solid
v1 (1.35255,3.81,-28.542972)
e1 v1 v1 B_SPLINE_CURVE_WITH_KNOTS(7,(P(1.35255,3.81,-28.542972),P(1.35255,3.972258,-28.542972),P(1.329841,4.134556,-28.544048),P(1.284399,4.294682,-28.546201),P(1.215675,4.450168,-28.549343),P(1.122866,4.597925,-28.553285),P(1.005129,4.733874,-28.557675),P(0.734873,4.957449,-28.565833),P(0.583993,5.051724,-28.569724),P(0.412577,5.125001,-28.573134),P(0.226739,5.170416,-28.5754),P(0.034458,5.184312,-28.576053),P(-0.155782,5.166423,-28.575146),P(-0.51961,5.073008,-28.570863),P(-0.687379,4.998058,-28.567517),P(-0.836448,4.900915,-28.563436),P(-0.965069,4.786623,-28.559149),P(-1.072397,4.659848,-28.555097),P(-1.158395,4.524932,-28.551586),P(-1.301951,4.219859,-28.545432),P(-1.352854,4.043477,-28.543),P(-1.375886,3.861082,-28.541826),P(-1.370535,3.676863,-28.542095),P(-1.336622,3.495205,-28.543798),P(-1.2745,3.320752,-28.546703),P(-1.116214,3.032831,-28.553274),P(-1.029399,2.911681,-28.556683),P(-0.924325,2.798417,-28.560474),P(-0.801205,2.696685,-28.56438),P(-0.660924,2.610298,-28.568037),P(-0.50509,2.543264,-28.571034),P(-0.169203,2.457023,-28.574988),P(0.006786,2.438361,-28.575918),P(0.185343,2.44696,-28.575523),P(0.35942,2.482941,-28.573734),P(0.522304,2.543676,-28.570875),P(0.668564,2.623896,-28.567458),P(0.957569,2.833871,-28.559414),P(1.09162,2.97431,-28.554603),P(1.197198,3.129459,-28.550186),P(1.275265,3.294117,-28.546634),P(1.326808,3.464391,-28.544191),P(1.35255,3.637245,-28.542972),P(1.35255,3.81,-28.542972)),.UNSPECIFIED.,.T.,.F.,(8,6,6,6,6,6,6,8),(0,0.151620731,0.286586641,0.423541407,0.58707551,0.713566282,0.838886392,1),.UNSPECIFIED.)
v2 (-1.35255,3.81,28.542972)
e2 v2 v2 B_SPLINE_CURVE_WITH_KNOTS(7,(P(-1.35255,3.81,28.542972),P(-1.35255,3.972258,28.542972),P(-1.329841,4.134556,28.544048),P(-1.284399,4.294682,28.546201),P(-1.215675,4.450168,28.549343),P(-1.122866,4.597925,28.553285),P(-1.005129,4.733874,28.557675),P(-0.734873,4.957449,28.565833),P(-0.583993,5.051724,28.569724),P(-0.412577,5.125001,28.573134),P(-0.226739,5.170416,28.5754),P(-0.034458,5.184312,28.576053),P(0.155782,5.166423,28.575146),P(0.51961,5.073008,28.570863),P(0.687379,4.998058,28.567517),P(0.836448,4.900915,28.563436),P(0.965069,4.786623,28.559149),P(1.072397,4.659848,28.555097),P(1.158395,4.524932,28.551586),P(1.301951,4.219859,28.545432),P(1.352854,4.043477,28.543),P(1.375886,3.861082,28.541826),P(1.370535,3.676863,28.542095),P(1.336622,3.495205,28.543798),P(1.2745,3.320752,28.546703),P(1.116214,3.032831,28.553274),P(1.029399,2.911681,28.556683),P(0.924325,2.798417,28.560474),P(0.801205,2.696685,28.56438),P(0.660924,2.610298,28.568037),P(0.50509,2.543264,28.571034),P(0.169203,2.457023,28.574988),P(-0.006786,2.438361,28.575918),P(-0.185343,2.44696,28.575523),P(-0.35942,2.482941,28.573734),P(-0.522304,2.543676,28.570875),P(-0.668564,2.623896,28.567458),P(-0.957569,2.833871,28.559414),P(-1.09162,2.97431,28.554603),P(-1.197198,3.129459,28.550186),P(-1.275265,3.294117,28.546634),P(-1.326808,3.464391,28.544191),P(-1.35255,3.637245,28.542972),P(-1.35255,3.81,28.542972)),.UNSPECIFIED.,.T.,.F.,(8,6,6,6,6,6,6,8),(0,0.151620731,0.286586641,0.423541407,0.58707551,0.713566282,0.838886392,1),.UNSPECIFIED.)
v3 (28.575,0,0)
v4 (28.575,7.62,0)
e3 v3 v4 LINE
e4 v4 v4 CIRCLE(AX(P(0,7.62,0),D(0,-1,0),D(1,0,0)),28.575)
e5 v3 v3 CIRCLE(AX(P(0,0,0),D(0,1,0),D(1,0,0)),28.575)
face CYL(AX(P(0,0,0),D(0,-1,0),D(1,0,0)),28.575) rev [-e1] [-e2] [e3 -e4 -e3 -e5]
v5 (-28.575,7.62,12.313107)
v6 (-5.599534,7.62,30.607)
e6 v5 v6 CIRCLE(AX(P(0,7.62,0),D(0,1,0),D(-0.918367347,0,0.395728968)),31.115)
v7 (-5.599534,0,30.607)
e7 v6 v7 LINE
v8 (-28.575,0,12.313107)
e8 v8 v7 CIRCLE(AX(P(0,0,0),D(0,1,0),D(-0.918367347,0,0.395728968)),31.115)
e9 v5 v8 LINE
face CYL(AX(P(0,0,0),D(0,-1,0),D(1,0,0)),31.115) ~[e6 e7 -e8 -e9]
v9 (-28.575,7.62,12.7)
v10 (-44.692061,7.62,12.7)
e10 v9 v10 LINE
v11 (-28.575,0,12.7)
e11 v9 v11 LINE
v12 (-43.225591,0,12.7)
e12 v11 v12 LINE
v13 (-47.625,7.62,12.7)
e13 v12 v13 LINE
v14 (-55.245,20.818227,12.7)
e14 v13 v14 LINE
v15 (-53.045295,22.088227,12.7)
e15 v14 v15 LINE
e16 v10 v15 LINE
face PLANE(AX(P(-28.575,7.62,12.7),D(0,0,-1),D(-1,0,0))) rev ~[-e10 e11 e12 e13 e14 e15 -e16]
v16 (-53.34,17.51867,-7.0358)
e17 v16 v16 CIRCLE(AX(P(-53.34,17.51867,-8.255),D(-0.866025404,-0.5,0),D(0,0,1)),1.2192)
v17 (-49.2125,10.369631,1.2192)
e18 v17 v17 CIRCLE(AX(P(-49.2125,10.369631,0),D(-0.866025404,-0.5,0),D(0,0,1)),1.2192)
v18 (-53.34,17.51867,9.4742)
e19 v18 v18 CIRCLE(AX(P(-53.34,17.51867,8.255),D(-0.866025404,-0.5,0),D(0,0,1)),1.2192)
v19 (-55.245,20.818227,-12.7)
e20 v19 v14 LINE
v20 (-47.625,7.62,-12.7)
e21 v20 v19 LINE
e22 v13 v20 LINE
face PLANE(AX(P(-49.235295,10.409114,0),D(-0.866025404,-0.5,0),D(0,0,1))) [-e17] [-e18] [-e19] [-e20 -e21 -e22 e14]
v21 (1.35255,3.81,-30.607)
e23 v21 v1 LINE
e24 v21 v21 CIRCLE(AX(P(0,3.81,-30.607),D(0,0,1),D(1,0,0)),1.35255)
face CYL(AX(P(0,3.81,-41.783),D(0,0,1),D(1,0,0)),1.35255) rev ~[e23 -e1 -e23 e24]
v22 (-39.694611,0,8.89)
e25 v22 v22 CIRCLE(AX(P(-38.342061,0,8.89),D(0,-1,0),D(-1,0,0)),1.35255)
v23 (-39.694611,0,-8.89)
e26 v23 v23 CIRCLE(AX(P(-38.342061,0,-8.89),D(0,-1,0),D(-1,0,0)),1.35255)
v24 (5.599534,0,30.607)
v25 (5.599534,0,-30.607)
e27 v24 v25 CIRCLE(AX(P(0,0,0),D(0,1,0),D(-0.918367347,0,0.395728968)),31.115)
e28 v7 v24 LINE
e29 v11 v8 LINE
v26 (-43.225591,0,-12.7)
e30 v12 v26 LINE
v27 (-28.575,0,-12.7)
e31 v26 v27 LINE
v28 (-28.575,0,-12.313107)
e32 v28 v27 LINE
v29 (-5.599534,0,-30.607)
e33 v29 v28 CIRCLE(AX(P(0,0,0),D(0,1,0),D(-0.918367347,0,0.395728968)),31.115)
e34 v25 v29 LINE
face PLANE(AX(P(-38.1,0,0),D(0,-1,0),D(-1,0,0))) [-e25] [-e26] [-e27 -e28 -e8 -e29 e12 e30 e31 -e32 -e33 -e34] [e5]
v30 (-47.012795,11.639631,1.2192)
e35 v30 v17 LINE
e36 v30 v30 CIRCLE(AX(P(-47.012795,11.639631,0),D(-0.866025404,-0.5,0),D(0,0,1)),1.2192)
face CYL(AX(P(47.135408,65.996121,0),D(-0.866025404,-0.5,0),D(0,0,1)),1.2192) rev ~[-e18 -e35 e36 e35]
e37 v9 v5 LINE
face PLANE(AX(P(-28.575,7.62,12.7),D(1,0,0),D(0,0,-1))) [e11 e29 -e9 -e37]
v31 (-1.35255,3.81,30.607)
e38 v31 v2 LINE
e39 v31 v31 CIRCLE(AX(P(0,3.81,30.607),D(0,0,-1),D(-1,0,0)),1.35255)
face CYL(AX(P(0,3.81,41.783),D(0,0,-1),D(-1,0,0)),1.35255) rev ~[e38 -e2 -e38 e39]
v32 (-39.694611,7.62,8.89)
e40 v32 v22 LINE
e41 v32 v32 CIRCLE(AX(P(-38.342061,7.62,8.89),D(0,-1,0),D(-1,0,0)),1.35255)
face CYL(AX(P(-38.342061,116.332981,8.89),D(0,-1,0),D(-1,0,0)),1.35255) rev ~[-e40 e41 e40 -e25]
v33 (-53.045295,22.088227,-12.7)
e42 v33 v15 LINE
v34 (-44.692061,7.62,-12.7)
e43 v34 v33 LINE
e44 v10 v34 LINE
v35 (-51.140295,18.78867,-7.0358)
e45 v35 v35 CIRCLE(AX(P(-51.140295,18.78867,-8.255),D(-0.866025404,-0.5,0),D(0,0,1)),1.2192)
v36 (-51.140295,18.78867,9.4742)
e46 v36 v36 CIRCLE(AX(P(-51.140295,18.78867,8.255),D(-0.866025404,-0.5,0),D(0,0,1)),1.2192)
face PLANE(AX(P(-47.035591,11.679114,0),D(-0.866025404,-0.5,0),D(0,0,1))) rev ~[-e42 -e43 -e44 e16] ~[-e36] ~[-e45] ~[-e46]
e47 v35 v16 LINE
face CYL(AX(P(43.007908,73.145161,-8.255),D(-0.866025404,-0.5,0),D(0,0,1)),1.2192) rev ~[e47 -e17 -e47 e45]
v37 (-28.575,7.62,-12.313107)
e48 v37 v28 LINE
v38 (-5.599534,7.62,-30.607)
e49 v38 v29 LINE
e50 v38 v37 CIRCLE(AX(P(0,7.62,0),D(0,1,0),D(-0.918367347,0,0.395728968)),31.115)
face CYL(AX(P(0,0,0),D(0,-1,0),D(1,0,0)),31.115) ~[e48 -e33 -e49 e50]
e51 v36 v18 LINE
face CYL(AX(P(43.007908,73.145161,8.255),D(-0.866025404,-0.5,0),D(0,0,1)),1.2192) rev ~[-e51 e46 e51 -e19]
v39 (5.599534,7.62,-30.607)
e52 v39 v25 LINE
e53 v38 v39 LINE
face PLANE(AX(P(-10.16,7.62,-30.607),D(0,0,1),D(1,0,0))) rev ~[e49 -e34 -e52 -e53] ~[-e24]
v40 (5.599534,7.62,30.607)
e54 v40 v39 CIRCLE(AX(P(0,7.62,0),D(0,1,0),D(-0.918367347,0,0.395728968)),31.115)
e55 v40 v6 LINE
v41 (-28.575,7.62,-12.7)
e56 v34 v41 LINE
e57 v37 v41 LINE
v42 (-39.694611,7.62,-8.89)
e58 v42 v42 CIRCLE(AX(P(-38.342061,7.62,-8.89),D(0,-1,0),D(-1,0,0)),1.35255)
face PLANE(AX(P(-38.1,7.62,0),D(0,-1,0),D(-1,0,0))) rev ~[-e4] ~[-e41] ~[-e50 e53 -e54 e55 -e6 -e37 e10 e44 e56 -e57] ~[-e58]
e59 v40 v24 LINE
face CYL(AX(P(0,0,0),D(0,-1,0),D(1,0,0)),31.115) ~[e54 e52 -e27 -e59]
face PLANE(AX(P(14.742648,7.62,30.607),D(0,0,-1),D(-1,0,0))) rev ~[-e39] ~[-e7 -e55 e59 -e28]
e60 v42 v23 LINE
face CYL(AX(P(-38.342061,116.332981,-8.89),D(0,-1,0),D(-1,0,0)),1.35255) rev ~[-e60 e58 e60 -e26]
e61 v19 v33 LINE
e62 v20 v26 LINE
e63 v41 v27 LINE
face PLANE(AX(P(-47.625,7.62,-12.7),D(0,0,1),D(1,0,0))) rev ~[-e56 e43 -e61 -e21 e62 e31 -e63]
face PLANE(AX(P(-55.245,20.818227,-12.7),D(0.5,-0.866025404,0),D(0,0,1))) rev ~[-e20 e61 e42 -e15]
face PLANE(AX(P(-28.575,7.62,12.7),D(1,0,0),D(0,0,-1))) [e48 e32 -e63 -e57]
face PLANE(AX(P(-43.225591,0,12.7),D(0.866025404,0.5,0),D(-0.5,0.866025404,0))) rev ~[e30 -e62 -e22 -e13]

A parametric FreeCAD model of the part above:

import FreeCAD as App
import Part
import Sketcher
from FreeCAD import Vector
Q = App.Units.Quantity


def add_polygon(sketch, points):
    """Adds a closed chain of lines whose ends are joined by coincident constraints."""
    first, n = sketch.GeometryCount, len(points)
    for a, b in zip(points, points[1:] + points[:1]):
        sketch.addGeometry(Part.LineSegment(App.Vector(*a, 0), App.Vector(*b, 0)), False)
    for i in range(n):
        sketch.addConstraint(Sketcher.Constraint("Coincident", first + i, 2, first + (i + 1) % n, 1))

doc = App.newDocument("Part")
params = doc.addObject("Spreadsheet::Sheet", "Params")
for row, (alias, value) in enumerate([
    ("sketch1_diameter", "2.45 in"),
    ("sketch1_diameter2", "2.25 in"),
    ("pad1_length", "0.3 in"),
    ("sketch2_height", "1 in"),
    ("sketch2_width", "0.75 in"),
    ("pad2_length", "0.3 in"),
    ("sketch3_height", "0.3 in"),
    ("sketch4_height", "0.3 in"),
    ("pocket2_length", "66.161026 mm"),
    ("sketch5_width", "1 in"),
    ("pad3_length", "0.1 in"),
    ("sketch6_diameter", "0.096 in"),
    ("hole_diameter", "0.096 in"),
    ("hole2_diameter", "0.1065 in"),
    ("sketch8_width", "0.8 in"),
    ("sketch8_height", "0.02 in"),
    ("sketch9_height", "0.02 in"),
    ("hole3_diameter", "0.1065 in"),
    ("hole3_depth", "0.44 in"),
    ("hole4_diameter", "0.1065 in"),
    ("hole4_depth", "0.44 in"),
], start=1):
    params.set(f"A{row}", alias)
    params.set(f"B{row}", "=" + value)
    params.setAlias(f"B{row}", alias)

body = doc.addObject("PartDesign::Body", "Body")

# Sketch on XZ plane
sketch1 = doc.addObject("Sketcher::SketchObject", "Sketch")
body.addObject(sketch1)
sketch1.AttachmentSupport = (doc.XZ_Plane, [""])
sketch1.MapMode = "FlatFace"
sketch1.addGeometry(Part.Circle(Vector(0, 0, 0), Vector(0, 0, 1), 31), False)
sketch1.addGeometry(Part.Circle(Vector(0, 0, 0), Vector(0, 0, 1), 29), False)
sketch1.addConstraint(Sketcher.Constraint("Coincident", 0, 3, -1, 1))
sketch1.addConstraint(Sketcher.Constraint("Coincident", 1, 3, -1, 1))
sketch1.addConstraint(Sketcher.Constraint("Diameter", 0, Q("2.45 in")))
sketch1.addConstraint(Sketcher.Constraint("Diameter", 1, Q("2.25 in")))
sketch1.setExpression("Constraints[2]", "Params.sketch1_diameter")
sketch1.setExpression("Constraints[3]", "Params.sketch1_diameter2")
pad1 = doc.addObject("PartDesign::Pad", "Pad")
body.addObject(pad1)
pad1.Profile = sketch1
pad1.setExpression("Length", "Params.pad1_length")
pad1.Reversed = True

# Sketch on XZ plane
sketch2 = doc.addObject("Sketcher::SketchObject", "Sketch001")
body.addObject(sketch2)
sketch2.AttachmentSupport = (doc.XZ_Plane, [""])
sketch2.MapMode = "FlatFace"
sketch2.AttachmentOffset = App.Placement(Vector(0, 0, -0.3 * 25.4), App.Rotation())
add_polygon(sketch2, [(-29, 13), (-29, -13), (-48, -13), (-48, 13)])  # lines 0-3
sketch2.addConstraint(Sketcher.Constraint("Vertical", 0))
sketch2.addConstraint(Sketcher.Constraint("Horizontal", 1))
sketch2.addConstraint(Sketcher.Constraint("Vertical", 2))
sketch2.addConstraint(Sketcher.Constraint("Horizontal", 3))
sketch2.addConstraint(Sketcher.Constraint("DistanceY", 0, 2, 0, 1, Q("1 in")))
sketch2.addConstraint(Sketcher.Constraint("DistanceX", 1, 2, 1, 1, Q("0.75 in")))
sketch2.addConstraint(Sketcher.Constraint("DistanceY", 0, 2, -1, 1, Q("0.5 in")))
sketch2.addConstraint(Sketcher.Constraint("DistanceX", 0, 2, -1, 1, Q("1.125 in")))
sketch2.setExpression("Constraints[8]", "Params.sketch2_height")
sketch2.setExpression("Constraints[9]", "Params.sketch2_width")
pad2 = doc.addObject("PartDesign::Pad", "Pad001")
body.addObject(pad2)
pad2.Profile = sketch2
pad2.setExpression("Length", "Params.pad2_length")

# Sketch on XY plane
sketch3 = doc.addObject("Sketcher::SketchObject", "Sketch002")
body.addObject(sketch3)
sketch3.AttachmentSupport = (doc.XY_Plane, [""])
sketch3.MapMode = "FlatFace"
sketch3.AttachmentOffset = App.Placement(Vector(0, 0, 0.5 * 25.4), App.Rotation())
add_polygon(sketch3, [(-47.6, 0), (-43.2, 0), (-47.6, 7.6)])  # lines 0-2
sketch3.addConstraint(Sketcher.Constraint("Horizontal", 0))
sketch3.addConstraint(Sketcher.Constraint("Vertical", 2))
sketch3.addConstraint(Sketcher.Constraint("PointOnObject", 0, 2, -1))
sketch3.addConstraint(Sketcher.Constraint("DistanceY", 2, 2, 2, 1, Q("0.3 in")))
sketch3.addConstraint(Sketcher.Constraint("Angle", 1, Q("120 deg")))
sketch3.addConstraint(Sketcher.Constraint("DistanceX", 1, 2, -1, 1, Q("1.875 in")))
sketch3.setExpression("Constraints[6]", "Params.sketch3_height")
pocket1 = doc.addObject("PartDesign::Pocket", "Pocket")
body.addObject(pocket1)
pocket1.Profile = sketch3
pocket1.Type = "UpToFirst"

# Sketch on XY plane
sketch4 = doc.addObject("Sketcher::SketchObject", "Sketch003")
body.addObject(sketch4)
sketch4.AttachmentSupport = (doc.XY_Plane, [""])
sketch4.MapMode = "FlatFace"
sketch4.AttachmentOffset = App.Placement(Vector(0, 0, 0.5 * 25.4), App.Rotation())
add_polygon(sketch4, [(-47.6, 0), (-43.2, 0), (-47.6, 7.6)])  # lines 0-2
sketch4.addConstraint(Sketcher.Constraint("Horizontal", 0))
sketch4.addConstraint(Sketcher.Constraint("Vertical", 2))
sketch4.addConstraint(Sketcher.Constraint("PointOnObject", 0, 2, -1))
sketch4.addConstraint(Sketcher.Constraint("DistanceY", 2, 2, 2, 1, Q("0.3 in")))
sketch4.addConstraint(Sketcher.Constraint("Angle", 1, Q("120 deg")))
sketch4.addConstraint(Sketcher.Constraint("DistanceX", 1, 2, -1, 1, Q("1.875 in")))
sketch4.setExpression("Constraints[6]", "Params.sketch4_height")
pocket2 = doc.addObject("PartDesign::Pocket", "Pocket001")
body.addObject(pocket2)
pocket2.Profile = sketch4
pocket2.setExpression("Length", "Params.pocket2_length")
pocket2.Reversed = True

# Sketch on an angled plane
sketch5 = doc.addObject("Sketcher::SketchObject", "Sketch004")
body.addObject(sketch5)
sketch5.Placement = App.Placement(Vector(-32.419193, -18.71723, 0), App.Rotation(Vector(0, 0, 1), Vector(-0.5, 0.866025404, 0), Vector(-0.866025404, -0.5, 0), "ZXY"))
add_polygon(sketch5, [(-13, 46), (-13, 22), (13, 22), (13, 46)])  # lines 0-3
sketch5.addConstraint(Sketcher.Constraint("Vertical", 0))
sketch5.addConstraint(Sketcher.Constraint("Horizontal", 1))
sketch5.addConstraint(Sketcher.Constraint("Vertical", 2))
sketch5.addConstraint(Sketcher.Constraint("Horizontal", 3))
sketch5.addConstraint(Sketcher.Constraint("DistanceX", 1, 1, 1, 2, Q("1 in")))
sketch5.addConstraint(Sketcher.Constraint("DistanceX", 0, 2, -1, 1, Q("0.5 in")))
sketch5.addConstraint(Sketcher.Constraint("DistanceY", 0, 2, 0, 1, Q("24.038818 mm")))
sketch5.addConstraint(Sketcher.Constraint("DistanceY", -1, 1, 0, 2, Q("21.612795 mm")))
sketch5.setExpression("Constraints[8]", "Params.sketch5_width")
pad3 = doc.addObject("PartDesign::Pad", "Pad002")
body.addObject(pad3)
pad3.Profile = sketch5
pad3.setExpression("Length", "Params.pad3_length")
pad3.Reversed = True

# Sketch on an angled plane
sketch6 = doc.addObject("Sketcher::SketchObject", "Sketch005")
body.addObject(sketch6)
sketch6.Placement = App.Placement(Vector(-30.219489, -17.44723, 0), App.Rotation(Vector(0, 0, -1), Vector(-0.5, 0.866025404, 0), Vector(0.866025404, 0.5, 0), "ZXY"))
sketch6.addGeometry(Part.Circle(Vector(-8.3, 41.8, 0), Vector(0, 0, 1), 1.2), False)
sketch6.addGeometry(Part.Circle(Vector(8.3, 41.8, 0), Vector(0, 0, 1), 1.2), False)
sketch6.addGeometry(Part.Circle(Vector(0, 33.6, 0), Vector(0, 0, 1), 1.2), False)
sketch6.addConstraint(Sketcher.Constraint("Equal", 0, 1))
sketch6.addConstraint(Sketcher.Constraint("Equal", 1, 2))
sketch6.addConstraint(Sketcher.Constraint("Symmetric", 0, 3, 1, 3, -2))
sketch6.addConstraint(Sketcher.Constraint("PointOnObject", 2, 3, -2))
sketch6.addConstraint(Sketcher.Constraint("Diameter", 0, Q("0.096 in")))
sketch6.addConstraint(Sketcher.Constraint("DistanceX", 0, 3, 1, 3, Q("0.65 in")))
sketch6.addConstraint(Sketcher.Constraint("DistanceY", 2, 3, 0, 3, Q("0.325 in")))
sketch6.addConstraint(Sketcher.Constraint("DistanceY", -1, 1, 0, 3, Q("41.841614 mm")))
sketch6.setExpression("Constraints[4]", "Params.sketch6_diameter")
doc.recompute()
hole = doc.addObject("PartDesign::Hole", "Hole")
body.addObject(hole)
hole.Profile = sketch6
hole.ThreadType = "None"
hole.setExpression("Diameter", "Params.hole_diameter")
hole.DepthType = "ThroughAll"

# Sketch on XZ plane
sketch7 = doc.addObject("Sketcher::SketchObject", "Sketch006")
body.addObject(sketch7)
sketch7.AttachmentSupport = (doc.XZ_Plane, [""])
sketch7.MapMode = "FlatFace"
sketch7.AttachmentOffset = App.Placement(Vector(0, 0, -0.3 * 25.4), App.Rotation())
sketch7.addGeometry(Part.Circle(Vector(-38.3, 8.9, 0), Vector(0, 0, 1), 1.4), False)
sketch7.addGeometry(Part.Circle(Vector(-38.3, -8.9, 0), Vector(0, 0, 1), 1.4), False)
sketch7.addConstraint(Sketcher.Constraint("Equal", 0, 1))
sketch7.addConstraint(Sketcher.Constraint("Symmetric", 0, 3, 1, 3, -1))
sketch7.addConstraint(Sketcher.Constraint("Diameter", 0, Q("0.1065 in")))
sketch7.addConstraint(Sketcher.Constraint("DistanceY", 1, 3, 0, 3, Q("0.7 in")))
sketch7.addConstraint(Sketcher.Constraint("DistanceX", 0, 3, -1, 1, Q("38.342061 mm")))
doc.recompute()
hole2 = doc.addObject("PartDesign::Hole", "Hole001")
body.addObject(hole2)
hole2.Profile = sketch7
hole2.ThreadType = "None"
hole2.setExpression("Diameter", "Params.hole2_diameter")
hole2.DepthType = "ThroughAll"
hole2.Reversed = True

# Sketch on XZ plane
sketch8 = doc.addObject("Sketcher::SketchObject", "Sketch007")
body.addObject(sketch8)
sketch8.AttachmentSupport = (doc.XZ_Plane, [""])
sketch8.MapMode = "FlatFace"
sketch8.AttachmentOffset = App.Placement(Vector(0, 0, -0.3 * 25.4), App.Rotation())
add_polygon(sketch8, [(-10.2, -31.1), (-10.2, -30.6), (10.2, -30.6), (10.2, -31.1)])  # lines 0-3
sketch8.addConstraint(Sketcher.Constraint("Vertical", 0))
sketch8.addConstraint(Sketcher.Constraint("Horizontal", 1))
sketch8.addConstraint(Sketcher.Constraint("Vertical", 2))
sketch8.addConstraint(Sketcher.Constraint("Horizontal", 3))
sketch8.addConstraint(Sketcher.Constraint("DistanceX", 1, 1, 1, 2, Q("0.8 in")))
sketch8.addConstraint(Sketcher.Constraint("DistanceY", 0, 1, 0, 2, Q("0.02 in")))
sketch8.addConstraint(Sketcher.Constraint("DistanceX", 0, 2, -1, 1, Q("0.4 in")))
sketch8.addConstraint(Sketcher.Constraint("DistanceY", 0, 2, -1, 1, Q("1.205 in")))
sketch8.setExpression("Constraints[8]", "Params.sketch8_width")
sketch8.setExpression("Constraints[9]", "Params.sketch8_height")
pocket3 = doc.addObject("PartDesign::Pocket", "Pocket002")
body.addObject(pocket3)
pocket3.Profile = sketch8
pocket3.Type = "ThroughAll"
pocket3.Reversed = True

# Sketch on XZ plane
sketch9 = doc.addObject("Sketcher::SketchObject", "Sketch008")
body.addObject(sketch9)
sketch9.AttachmentSupport = (doc.XZ_Plane, [""])
sketch9.MapMode = "FlatFace"
sketch9.AttachmentOffset = App.Placement(Vector(0, 0, -0.3 * 25.4), App.Rotation())
add_polygon(sketch9, [(14.7, 31.1), (14.7, 30.6), (-16.1, 30.6), (-16.1, 31.1)])  # lines 0-3
sketch9.addConstraint(Sketcher.Constraint("Vertical", 0))
sketch9.addConstraint(Sketcher.Constraint("Horizontal", 1))
sketch9.addConstraint(Sketcher.Constraint("Vertical", 2))
sketch9.addConstraint(Sketcher.Constraint("Horizontal", 3))
sketch9.addConstraint(Sketcher.Constraint("DistanceY", 0, 2, 0, 1, Q("0.02 in")))
sketch9.addConstraint(Sketcher.Constraint("DistanceY", -1, 1, 0, 2, Q("1.205 in")))
sketch9.addConstraint(Sketcher.Constraint("DistanceX", 1, 2, 1, 1, Q("30.82263 mm")))
sketch9.addConstraint(Sketcher.Constraint("DistanceX", -1, 1, 0, 2, Q("14.742648 mm")))
sketch9.setExpression("Constraints[8]", "Params.sketch9_height")
pocket4 = doc.addObject("PartDesign::Pocket", "Pocket003")
body.addObject(pocket4)
pocket4.Profile = sketch9
pocket4.Type = "ThroughAll"
pocket4.Reversed = True

# Sketch on XY plane
sketch10 = doc.addObject("Sketcher::SketchObject", "Sketch009")
body.addObject(sketch10)
sketch10.AttachmentSupport = (doc.XY_Plane, [""])
sketch10.MapMode = "FlatFace"
sketch10.AttachmentOffset = App.Placement(Vector(0, 0, -1.205 * 25.4), App.Rotation())
sketch10.addGeometry(Part.Circle(Vector(0, 3.8, 0), Vector(0, 0, 1), 1.4), False)
sketch10.addConstraint(Sketcher.Constraint("PointOnObject", 0, 3, -2))
sketch10.addConstraint(Sketcher.Constraint("Diameter", 0, Q("0.1065 in")))
sketch10.addConstraint(Sketcher.Constraint("DistanceY", -1, 1, 0, 3, Q("0.15 in")))
doc.recompute()
hole3 = doc.addObject("PartDesign::Hole", "Hole002")
body.addObject(hole3)
hole3.Profile = sketch10
hole3.ThreadType = "None"
hole3.setExpression("Diameter", "Params.hole3_diameter")
hole3.DepthType = "Dimension"
hole3.setExpression("Depth", "Params.hole3_depth")
hole3.DrillPoint = "Angled"
hole3.DrillPointAngle = 118
hole3.Reversed = True

# Sketch on XY plane
sketch11 = doc.addObject("Sketcher::SketchObject", "Sketch010")
body.addObject(sketch11)
sketch11.AttachmentSupport = (doc.XY_Plane, [""])
sketch11.MapMode = "FlatFace"
sketch11.AttachmentOffset = App.Placement(Vector(0, 0, 1.205 * 25.4), App.Rotation())
sketch11.addGeometry(Part.Circle(Vector(0, 3.8, 0), Vector(0, 0, 1), 1.4), False)
sketch11.addConstraint(Sketcher.Constraint("PointOnObject", 0, 3, -2))
sketch11.addConstraint(Sketcher.Constraint("Diameter", 0, Q("0.1065 in")))
sketch11.addConstraint(Sketcher.Constraint("DistanceY", -1, 1, 0, 3, Q("0.15 in")))
doc.recompute()
hole4 = doc.addObject("PartDesign::Hole", "Hole003")
body.addObject(hole4)
hole4.Profile = sketch11
hole4.ThreadType = "None"
hole4.setExpression("Diameter", "Params.hole4_diameter")
hole4.DepthType = "Dimension"
hole4.setExpression("Depth", "Params.hole4_depth")
hole4.DrillPoint = "Angled"
hole4.DrillPointAngle = 118

doc.recompute()
